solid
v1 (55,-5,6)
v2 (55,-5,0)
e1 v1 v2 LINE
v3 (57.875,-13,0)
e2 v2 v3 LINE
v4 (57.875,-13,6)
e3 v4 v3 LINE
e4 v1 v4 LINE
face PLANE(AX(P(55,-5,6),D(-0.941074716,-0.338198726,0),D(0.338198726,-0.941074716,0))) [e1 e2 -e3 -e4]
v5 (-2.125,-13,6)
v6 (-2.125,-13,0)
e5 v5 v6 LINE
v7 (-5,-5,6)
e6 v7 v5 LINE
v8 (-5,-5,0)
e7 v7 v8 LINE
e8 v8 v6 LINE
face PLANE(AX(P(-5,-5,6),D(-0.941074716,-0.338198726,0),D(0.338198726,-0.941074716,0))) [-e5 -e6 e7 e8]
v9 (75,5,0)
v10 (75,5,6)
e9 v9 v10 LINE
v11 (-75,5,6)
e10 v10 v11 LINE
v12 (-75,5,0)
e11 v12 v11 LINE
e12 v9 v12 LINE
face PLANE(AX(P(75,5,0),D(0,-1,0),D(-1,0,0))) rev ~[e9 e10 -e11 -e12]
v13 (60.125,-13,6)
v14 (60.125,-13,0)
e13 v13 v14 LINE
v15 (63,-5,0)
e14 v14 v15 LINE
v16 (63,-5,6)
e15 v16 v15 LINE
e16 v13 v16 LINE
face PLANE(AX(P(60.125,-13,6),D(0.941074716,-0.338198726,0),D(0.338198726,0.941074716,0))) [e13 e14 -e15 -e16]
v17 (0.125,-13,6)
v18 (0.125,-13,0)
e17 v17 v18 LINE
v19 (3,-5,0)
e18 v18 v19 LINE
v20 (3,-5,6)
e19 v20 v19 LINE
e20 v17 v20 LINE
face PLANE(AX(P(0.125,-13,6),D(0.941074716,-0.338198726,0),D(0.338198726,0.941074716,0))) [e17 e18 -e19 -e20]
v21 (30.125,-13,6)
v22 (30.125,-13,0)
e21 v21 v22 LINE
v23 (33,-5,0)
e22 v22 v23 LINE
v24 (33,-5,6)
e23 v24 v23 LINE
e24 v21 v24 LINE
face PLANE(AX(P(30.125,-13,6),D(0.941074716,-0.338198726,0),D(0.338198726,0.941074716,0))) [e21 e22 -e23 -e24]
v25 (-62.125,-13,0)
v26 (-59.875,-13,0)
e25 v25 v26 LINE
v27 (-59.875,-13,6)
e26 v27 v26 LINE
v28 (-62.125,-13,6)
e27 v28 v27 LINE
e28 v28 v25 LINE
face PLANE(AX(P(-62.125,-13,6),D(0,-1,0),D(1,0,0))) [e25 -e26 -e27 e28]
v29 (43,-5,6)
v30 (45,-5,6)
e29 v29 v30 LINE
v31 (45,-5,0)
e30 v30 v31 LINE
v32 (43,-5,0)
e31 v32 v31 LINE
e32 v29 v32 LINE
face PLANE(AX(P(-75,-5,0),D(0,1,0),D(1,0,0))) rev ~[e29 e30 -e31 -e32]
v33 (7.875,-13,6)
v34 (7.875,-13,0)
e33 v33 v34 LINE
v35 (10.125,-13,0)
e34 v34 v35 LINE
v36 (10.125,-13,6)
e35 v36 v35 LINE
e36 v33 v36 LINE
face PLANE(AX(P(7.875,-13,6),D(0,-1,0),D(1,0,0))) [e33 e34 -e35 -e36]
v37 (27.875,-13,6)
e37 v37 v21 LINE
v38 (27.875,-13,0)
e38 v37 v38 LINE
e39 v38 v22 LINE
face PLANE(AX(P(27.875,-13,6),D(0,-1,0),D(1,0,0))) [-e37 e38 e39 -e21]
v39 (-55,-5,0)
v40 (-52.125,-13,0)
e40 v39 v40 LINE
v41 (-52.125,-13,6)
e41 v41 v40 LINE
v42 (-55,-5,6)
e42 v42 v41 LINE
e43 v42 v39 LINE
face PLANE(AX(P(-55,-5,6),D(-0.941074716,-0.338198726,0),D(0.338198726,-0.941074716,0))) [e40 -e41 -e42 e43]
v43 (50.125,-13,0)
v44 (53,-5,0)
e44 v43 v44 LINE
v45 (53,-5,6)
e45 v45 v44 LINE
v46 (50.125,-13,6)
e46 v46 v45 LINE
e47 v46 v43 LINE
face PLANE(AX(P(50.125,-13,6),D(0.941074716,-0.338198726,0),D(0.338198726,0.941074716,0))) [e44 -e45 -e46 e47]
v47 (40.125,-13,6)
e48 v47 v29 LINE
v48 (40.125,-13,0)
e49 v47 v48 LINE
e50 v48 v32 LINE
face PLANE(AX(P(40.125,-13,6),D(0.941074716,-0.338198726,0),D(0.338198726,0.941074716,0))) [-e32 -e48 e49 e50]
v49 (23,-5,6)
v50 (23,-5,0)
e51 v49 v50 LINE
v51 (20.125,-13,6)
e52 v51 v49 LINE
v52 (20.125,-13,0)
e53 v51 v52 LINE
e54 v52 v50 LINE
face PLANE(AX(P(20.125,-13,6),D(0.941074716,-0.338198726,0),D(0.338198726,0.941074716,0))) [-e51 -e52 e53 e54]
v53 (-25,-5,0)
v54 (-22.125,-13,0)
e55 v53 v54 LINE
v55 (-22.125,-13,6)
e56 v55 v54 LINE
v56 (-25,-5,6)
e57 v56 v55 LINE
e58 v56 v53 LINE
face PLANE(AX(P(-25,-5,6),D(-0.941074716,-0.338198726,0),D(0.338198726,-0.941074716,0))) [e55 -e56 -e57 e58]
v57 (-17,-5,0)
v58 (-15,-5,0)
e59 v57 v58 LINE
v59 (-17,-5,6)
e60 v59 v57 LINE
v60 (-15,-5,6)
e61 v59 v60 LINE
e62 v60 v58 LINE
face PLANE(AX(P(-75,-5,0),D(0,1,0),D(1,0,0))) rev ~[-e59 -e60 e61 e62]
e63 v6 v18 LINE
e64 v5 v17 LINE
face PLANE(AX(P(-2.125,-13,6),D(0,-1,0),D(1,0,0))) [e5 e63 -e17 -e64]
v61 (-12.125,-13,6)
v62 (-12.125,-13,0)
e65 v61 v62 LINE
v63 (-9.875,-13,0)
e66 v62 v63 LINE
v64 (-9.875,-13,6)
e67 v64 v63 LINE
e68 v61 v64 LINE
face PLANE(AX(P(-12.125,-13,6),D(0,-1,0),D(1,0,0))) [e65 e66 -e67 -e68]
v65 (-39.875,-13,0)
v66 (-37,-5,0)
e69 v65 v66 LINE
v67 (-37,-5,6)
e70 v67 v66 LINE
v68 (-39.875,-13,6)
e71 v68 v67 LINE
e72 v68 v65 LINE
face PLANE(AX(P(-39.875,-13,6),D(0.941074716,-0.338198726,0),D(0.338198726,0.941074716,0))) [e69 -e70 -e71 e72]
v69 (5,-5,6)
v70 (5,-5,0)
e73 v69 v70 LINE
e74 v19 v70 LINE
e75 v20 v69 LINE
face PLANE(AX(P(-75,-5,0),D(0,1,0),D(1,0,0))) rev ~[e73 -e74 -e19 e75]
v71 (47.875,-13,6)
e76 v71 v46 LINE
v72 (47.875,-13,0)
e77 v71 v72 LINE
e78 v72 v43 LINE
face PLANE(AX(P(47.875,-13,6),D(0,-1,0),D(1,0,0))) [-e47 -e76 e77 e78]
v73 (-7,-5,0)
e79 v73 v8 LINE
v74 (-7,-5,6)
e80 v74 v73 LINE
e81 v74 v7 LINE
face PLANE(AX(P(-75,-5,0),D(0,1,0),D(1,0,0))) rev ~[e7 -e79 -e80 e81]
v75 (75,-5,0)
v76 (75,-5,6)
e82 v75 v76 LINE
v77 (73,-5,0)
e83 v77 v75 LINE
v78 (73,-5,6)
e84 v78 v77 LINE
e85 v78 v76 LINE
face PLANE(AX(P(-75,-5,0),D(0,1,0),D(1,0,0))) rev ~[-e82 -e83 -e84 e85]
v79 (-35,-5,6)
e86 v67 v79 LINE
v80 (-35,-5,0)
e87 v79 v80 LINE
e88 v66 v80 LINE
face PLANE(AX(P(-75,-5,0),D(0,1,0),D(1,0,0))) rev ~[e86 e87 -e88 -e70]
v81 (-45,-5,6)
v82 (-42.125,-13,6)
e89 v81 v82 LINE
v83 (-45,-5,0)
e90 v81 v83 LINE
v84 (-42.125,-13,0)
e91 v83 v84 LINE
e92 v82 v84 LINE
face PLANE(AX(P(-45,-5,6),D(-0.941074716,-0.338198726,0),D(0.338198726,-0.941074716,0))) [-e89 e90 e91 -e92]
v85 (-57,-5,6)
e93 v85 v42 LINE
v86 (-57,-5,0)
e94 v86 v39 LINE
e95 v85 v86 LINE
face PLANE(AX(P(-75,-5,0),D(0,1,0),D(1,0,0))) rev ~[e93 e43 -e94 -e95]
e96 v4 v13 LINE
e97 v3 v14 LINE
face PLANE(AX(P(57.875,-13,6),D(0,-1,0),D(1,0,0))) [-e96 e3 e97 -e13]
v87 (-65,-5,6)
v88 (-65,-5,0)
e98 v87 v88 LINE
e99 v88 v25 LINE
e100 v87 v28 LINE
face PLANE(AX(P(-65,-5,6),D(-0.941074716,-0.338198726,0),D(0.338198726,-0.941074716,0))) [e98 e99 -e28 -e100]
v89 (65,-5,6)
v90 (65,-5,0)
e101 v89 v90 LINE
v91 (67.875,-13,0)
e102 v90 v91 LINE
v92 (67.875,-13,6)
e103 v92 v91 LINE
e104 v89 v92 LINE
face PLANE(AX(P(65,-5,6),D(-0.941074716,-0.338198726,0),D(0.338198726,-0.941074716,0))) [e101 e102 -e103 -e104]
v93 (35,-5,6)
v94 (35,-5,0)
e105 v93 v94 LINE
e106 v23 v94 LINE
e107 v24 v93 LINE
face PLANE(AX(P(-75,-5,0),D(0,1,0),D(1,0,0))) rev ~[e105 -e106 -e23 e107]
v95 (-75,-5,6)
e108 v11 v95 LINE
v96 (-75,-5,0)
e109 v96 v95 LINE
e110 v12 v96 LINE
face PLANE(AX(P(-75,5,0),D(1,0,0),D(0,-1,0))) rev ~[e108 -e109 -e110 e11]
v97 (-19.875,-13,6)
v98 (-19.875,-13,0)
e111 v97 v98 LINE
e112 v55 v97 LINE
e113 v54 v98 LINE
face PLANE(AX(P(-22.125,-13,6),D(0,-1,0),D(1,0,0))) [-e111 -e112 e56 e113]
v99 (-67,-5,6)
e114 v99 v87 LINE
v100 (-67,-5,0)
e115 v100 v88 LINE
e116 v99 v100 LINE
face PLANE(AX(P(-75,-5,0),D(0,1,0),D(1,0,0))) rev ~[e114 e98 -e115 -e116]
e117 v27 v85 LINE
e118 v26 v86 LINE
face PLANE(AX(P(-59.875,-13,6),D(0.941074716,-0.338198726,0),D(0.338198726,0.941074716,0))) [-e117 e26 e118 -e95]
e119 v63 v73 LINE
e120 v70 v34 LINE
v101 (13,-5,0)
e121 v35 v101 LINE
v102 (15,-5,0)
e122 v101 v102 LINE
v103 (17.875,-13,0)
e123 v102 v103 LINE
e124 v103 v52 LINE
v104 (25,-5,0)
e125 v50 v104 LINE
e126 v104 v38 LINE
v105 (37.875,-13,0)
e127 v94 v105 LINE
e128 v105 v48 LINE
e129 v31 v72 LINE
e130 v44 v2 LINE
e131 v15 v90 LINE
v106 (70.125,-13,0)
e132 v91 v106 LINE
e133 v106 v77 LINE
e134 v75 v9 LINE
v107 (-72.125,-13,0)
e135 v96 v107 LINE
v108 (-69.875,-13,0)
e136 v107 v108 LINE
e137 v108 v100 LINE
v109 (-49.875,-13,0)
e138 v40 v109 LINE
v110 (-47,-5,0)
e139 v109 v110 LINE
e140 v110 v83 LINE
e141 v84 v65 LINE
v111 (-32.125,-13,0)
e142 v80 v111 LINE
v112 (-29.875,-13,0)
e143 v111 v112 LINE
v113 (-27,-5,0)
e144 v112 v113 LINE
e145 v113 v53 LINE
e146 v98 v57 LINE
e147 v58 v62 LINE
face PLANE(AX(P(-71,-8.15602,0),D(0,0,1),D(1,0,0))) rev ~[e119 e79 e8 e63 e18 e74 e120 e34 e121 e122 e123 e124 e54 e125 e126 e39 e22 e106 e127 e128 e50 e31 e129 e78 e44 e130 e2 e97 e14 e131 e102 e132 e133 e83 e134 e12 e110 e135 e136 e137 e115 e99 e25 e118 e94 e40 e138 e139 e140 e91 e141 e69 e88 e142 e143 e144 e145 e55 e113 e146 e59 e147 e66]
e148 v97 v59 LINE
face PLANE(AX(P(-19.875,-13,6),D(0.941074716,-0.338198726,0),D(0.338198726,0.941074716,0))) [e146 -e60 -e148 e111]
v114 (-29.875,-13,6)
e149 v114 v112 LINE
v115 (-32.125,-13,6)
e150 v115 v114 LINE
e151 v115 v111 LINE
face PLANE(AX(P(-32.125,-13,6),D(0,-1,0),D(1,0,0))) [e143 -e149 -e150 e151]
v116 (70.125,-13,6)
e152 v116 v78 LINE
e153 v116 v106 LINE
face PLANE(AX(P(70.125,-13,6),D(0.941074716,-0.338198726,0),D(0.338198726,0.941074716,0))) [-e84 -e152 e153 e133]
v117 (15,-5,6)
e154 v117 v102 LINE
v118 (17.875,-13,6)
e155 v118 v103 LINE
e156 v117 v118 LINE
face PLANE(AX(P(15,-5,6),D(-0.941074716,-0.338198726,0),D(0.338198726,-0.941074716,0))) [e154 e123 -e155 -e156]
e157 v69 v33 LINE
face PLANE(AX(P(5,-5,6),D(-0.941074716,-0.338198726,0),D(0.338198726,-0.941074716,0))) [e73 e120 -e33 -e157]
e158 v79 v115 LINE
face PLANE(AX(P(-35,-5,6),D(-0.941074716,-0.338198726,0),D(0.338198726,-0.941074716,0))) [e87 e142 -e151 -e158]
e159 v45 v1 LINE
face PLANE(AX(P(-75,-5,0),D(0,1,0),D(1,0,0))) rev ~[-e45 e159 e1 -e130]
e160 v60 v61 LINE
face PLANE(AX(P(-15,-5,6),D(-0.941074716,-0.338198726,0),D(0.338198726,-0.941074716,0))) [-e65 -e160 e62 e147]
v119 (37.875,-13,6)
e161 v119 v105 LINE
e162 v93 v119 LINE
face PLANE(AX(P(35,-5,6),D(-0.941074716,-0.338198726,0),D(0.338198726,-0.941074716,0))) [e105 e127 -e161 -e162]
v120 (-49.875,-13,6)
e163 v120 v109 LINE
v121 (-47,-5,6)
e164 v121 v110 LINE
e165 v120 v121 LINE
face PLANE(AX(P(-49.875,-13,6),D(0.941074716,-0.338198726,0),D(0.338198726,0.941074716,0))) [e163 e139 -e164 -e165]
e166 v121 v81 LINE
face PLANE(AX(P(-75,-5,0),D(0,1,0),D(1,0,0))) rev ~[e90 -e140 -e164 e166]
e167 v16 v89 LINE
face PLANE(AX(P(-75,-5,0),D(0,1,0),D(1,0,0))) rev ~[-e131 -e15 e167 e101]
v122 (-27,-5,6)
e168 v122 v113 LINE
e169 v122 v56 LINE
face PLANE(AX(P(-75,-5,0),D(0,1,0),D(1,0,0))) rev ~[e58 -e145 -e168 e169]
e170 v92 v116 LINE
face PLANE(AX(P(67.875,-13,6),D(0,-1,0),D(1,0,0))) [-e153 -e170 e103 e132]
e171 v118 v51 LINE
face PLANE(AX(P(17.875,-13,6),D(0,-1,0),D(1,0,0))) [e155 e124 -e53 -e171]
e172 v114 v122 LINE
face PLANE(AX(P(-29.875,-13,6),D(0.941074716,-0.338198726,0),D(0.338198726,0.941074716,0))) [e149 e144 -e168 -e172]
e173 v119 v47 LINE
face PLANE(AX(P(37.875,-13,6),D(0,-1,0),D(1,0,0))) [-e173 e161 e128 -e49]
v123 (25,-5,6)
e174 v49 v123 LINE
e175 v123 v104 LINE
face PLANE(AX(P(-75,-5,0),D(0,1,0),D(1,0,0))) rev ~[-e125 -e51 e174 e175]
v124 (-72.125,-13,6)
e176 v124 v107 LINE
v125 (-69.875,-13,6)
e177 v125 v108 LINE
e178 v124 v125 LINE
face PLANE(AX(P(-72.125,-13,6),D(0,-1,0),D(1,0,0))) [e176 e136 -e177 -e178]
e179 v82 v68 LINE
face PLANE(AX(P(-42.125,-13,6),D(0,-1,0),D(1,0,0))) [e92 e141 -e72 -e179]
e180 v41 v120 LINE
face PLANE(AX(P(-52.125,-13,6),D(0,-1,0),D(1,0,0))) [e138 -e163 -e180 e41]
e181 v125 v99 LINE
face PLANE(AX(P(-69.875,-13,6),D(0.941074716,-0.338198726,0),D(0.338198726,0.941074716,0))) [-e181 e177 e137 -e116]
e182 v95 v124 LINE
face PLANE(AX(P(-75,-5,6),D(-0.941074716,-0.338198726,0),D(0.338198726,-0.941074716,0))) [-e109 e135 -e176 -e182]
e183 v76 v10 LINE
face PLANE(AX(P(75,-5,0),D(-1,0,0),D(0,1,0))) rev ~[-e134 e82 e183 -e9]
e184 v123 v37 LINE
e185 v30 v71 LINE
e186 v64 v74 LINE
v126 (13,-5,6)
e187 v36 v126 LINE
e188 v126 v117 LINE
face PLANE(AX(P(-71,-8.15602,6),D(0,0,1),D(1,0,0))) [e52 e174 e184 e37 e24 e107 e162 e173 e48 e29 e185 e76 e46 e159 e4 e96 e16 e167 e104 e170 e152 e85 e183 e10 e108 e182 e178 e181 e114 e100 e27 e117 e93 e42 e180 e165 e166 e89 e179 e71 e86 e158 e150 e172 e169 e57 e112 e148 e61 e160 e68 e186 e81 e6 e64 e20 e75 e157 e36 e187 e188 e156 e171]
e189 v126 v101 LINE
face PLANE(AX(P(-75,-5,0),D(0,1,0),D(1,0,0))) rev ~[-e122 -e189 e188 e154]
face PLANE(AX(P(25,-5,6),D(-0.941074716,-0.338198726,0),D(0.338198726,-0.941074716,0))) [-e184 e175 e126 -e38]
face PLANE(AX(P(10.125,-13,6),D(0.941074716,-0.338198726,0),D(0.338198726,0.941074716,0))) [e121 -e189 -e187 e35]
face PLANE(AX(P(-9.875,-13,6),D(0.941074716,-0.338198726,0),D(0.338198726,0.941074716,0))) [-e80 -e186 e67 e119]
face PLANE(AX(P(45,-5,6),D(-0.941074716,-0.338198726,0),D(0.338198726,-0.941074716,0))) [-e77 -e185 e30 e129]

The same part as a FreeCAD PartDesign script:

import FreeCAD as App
import Part
import Sketcher


def add_polygon(sketch, points):
    """Adds a closed chain of lines whose ends are joined by coincident constraints."""
    first, n = sketch.GeometryCount, len(points)
    for a, b in zip(points, points[1:] + points[:1]):
        sketch.addGeometry(Part.LineSegment(App.Vector(*a, 0), App.Vector(*b, 0)), False)
    for i in range(n):
        sketch.addConstraint(Sketcher.Constraint("Coincident", first + i, 2, first + (i + 1) % n, 1))

doc = App.newDocument("Part")
body = doc.addObject("PartDesign::Body", "Body")

sketch1 = body.newObject("Sketcher::SketchObject", "Sketch")
sketch1.AttachmentSupport = (doc.getObject("XY_Plane"), [""])
sketch1.MapMode = "FlatFace"
add_polygon(sketch1, [(-75, 5), (-75, -5), (75, -5), (75, 5)])
sketch1.addConstraint(Sketcher.Constraint("Vertical", 0))
sketch1.addConstraint(Sketcher.Constraint("Horizontal", 1))
sketch1.addConstraint(Sketcher.Constraint("Vertical", 2))
sketch1.addConstraint(Sketcher.Constraint("Horizontal", 3))
sketch1.addConstraint(Sketcher.Constraint("Symmetric", 0, 2, 2, 2, -1, 1))
sketch1.addConstraint(Sketcher.Constraint("DistanceX", 1, 1, 1, 2, 150.0))
sketch1.addConstraint(Sketcher.Constraint("DistanceY", 0, 2, 0, 1, 10.0))
pad1 = body.newObject("PartDesign::Pad", "Pad")
pad1.Profile = sketch1
pad1.Length = 6

sketch2 = body.newObject("Sketcher::SketchObject", "Sketch001")
sketch2.AttachmentSupport = (doc.getObject("XY_Plane"), [""])
sketch2.MapMode = "FlatFace"
sketch2.AttachmentOffset = App.Placement(App.Vector(0, 0, 6), App.Rotation())
add_polygon(sketch2, [(-75, -5), (-72.125, -13), (-69.875, -13), (-67, -5)])
sketch2.addConstraint(Sketcher.Constraint("Horizontal", 1))
sketch2.addConstraint(Sketcher.Constraint("Horizontal", 3))
sketch2.addConstraint(Sketcher.Constraint("Equal", 0, 2))
sketch2.addConstraint(Sketcher.Constraint("DistanceX", 3, 2, 3, 1, 8.0))
sketch2.addConstraint(Sketcher.Constraint("DistanceY", 0, 2, -1, 1, 13.0))
sketch2.addConstraint(Sketcher.Constraint("DistanceX", 2, 2, -1, 1, 67.0))
sketch2.addConstraint(Sketcher.Constraint("DistanceY", 2, 2, -1, 1, 5.0))
sketch2.addConstraint(Sketcher.Constraint("DistanceX", 1, 1, 1, 2, 2.25))
pad2 = body.newObject("PartDesign::Pad", "Pad001")
pad2.Profile = sketch2
pad2.Length = 6
pad2.Reversed = True
doc.recompute()

linearpattern = body.newObject("PartDesign::LinearPattern", "LinearPattern")
linearpattern.Originals = [pad2]
linearpattern.Direction = (doc.getObject("X_Axis"), [""])
linearpattern.Mode = "offset"
linearpattern.Offset = 10
linearpattern.Occurrences = 15
body.Tip = linearpattern

doc.recompute()
